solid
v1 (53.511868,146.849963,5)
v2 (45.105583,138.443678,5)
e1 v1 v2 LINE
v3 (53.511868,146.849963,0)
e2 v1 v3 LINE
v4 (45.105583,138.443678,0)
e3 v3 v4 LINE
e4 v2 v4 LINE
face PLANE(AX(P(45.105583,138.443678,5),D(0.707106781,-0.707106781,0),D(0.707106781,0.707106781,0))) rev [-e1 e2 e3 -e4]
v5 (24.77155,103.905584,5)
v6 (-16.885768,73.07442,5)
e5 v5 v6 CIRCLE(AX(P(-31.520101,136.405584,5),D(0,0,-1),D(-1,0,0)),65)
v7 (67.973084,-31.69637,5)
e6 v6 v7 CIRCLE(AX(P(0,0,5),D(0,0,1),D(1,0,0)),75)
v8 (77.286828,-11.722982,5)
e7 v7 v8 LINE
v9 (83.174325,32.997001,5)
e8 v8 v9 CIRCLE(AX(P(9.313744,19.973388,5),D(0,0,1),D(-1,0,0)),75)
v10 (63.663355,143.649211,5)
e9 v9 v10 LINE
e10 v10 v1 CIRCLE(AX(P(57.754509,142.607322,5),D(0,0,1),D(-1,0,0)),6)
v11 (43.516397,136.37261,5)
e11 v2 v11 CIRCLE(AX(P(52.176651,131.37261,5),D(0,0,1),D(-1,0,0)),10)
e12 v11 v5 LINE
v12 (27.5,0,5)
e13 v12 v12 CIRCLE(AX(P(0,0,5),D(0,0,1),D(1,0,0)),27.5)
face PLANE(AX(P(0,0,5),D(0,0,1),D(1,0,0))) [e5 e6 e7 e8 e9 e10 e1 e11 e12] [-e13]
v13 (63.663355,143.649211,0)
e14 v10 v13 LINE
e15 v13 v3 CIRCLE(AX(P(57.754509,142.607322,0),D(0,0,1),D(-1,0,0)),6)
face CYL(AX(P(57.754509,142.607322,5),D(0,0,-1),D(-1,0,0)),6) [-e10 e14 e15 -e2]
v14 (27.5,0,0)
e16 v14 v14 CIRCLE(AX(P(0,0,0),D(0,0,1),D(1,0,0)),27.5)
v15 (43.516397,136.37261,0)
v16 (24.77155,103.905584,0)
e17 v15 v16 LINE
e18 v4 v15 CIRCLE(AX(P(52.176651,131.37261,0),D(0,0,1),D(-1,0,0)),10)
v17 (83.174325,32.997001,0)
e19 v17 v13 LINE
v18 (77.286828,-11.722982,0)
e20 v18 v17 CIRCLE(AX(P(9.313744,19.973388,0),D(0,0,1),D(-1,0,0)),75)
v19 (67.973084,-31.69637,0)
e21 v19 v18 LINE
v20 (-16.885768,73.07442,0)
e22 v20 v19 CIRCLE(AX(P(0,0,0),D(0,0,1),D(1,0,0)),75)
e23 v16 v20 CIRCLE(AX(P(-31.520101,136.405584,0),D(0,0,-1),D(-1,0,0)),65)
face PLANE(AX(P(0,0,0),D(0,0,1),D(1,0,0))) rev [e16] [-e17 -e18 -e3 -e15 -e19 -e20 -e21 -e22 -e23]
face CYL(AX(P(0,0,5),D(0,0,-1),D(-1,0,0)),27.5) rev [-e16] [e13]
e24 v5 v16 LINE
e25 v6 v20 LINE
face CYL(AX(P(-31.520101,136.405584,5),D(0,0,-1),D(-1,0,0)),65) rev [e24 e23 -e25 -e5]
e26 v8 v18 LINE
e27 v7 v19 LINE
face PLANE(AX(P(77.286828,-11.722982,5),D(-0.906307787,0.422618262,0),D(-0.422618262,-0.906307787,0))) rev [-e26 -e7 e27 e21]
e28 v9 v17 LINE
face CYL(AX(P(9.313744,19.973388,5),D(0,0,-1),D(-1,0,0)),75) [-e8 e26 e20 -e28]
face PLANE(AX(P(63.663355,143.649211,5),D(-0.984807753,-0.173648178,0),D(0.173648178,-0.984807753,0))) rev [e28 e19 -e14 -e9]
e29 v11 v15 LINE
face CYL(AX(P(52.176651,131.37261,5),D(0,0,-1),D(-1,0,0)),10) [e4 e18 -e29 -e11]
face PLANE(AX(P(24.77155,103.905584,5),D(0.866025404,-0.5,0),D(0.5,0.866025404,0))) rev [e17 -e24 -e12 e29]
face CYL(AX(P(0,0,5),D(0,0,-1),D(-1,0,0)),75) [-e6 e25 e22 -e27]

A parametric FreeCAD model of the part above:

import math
import FreeCAD as App
import Part
import Sketcher
from FreeCAD import Vector
Q = App.Units.Quantity

doc = App.newDocument("Part")
body = doc.addObject("PartDesign::Body", "Body")

# Sketch on XY plane
sketch1 = body.newObject("Sketcher::SketchObject", "Sketch")
sketch1.AttachmentSupport = (doc.getObject("XY_Plane"), [""])
sketch1.MapMode = "FlatFace"
sketch1.addGeometry([
    Part.LineSegment(Vector(43.5, 136.4, 0), Vector(24.8, 103.9, 0)),  # 0
    Part.ArcOfCircle(Part.Circle(Vector(-31.5, 136.4, 0), Vector(0, 0, 1), 65), math.radians(-77), math.radians(-30)),  # 1
    Part.ArcOfCircle(Part.Circle(Vector(0, 0, 0), Vector(0, 0, 1), 75), math.radians(103), math.radians(335)),  # 2
    Part.LineSegment(Vector(68, -31.7, 0), Vector(77.3, -11.7, 0)),  # 3
    Part.ArcOfCircle(Part.Circle(Vector(9.3, 20, 0), Vector(0, 0, 1), 75), math.radians(-25), math.radians(10)),  # 4
    Part.LineSegment(Vector(83.2, 33, 0), Vector(63.7, 143.6, 0)),  # 5
    Part.ArcOfCircle(Part.Circle(Vector(57.8, 142.6, 0), Vector(0, 0, 1), 6), math.radians(10), math.radians(135)),  # 6
    Part.LineSegment(Vector(53.5, 146.8, 0), Vector(45.1, 138.4, 0)),  # 7
    Part.ArcOfCircle(Part.Circle(Vector(52.2, 131.4, 0), Vector(0, 0, 1), 10), math.radians(135), math.radians(150)),  # 8
    Part.Circle(Vector(0, 0, 0), Vector(0, 0, 1), 27.5),  # 9
], False)
sketch1.addConstraint([
    Sketcher.Constraint("Tangent", 0, 2, 1, 2),
    Sketcher.Constraint("Tangent", 1, 1, 2, 1),
    Sketcher.Constraint("Tangent", 2, 2, 3, 1),
    Sketcher.Constraint("Tangent", 3, 2, 4, 1),
    Sketcher.Constraint("Tangent", 4, 2, 5, 1),
    Sketcher.Constraint("Tangent", 5, 2, 6, 1),
    Sketcher.Constraint("Tangent", 6, 2, 7, 1),
    Sketcher.Constraint("Tangent", 7, 2, 8, 1),
    Sketcher.Constraint("Tangent", 8, 2, 0, 1),
    Sketcher.Constraint("Coincident", 2, 3, -1, 1),
    Sketcher.Constraint("Coincident", 9, 3, -1, 1),
    Sketcher.Constraint("Equal", 2, 4),
    Sketcher.Constraint("Diameter", 9, 55.0),
    Sketcher.Constraint("Radius", 1, 65.0),
    Sketcher.Constraint("Radius", 2, 75.0),
    Sketcher.Constraint("Radius", 6, 6.0),
    Sketcher.Constraint("Radius", 8, 10.0),
    Sketcher.Constraint("Angle", 0, Q("-120 deg")),
    Sketcher.Constraint("Angle", 3, Q("65 deg")),
    Sketcher.Constraint("Angle", 5, Q("100 deg")),
    Sketcher.Constraint("Angle", 7, Q("-135 deg")),
    Sketcher.Constraint("DistanceY", -1, 1, 4, 2, 32.997001),
    Sketcher.Constraint("Distance", 5, 112.359199),
    Sketcher.Constraint("DistanceX", 1, 3, -1, 1, 31.520101),
])
pad1 = body.newObject("PartDesign::Pad", "Pad")
pad1.Profile = sketch1
pad1.Length = 5

doc.recompute()
